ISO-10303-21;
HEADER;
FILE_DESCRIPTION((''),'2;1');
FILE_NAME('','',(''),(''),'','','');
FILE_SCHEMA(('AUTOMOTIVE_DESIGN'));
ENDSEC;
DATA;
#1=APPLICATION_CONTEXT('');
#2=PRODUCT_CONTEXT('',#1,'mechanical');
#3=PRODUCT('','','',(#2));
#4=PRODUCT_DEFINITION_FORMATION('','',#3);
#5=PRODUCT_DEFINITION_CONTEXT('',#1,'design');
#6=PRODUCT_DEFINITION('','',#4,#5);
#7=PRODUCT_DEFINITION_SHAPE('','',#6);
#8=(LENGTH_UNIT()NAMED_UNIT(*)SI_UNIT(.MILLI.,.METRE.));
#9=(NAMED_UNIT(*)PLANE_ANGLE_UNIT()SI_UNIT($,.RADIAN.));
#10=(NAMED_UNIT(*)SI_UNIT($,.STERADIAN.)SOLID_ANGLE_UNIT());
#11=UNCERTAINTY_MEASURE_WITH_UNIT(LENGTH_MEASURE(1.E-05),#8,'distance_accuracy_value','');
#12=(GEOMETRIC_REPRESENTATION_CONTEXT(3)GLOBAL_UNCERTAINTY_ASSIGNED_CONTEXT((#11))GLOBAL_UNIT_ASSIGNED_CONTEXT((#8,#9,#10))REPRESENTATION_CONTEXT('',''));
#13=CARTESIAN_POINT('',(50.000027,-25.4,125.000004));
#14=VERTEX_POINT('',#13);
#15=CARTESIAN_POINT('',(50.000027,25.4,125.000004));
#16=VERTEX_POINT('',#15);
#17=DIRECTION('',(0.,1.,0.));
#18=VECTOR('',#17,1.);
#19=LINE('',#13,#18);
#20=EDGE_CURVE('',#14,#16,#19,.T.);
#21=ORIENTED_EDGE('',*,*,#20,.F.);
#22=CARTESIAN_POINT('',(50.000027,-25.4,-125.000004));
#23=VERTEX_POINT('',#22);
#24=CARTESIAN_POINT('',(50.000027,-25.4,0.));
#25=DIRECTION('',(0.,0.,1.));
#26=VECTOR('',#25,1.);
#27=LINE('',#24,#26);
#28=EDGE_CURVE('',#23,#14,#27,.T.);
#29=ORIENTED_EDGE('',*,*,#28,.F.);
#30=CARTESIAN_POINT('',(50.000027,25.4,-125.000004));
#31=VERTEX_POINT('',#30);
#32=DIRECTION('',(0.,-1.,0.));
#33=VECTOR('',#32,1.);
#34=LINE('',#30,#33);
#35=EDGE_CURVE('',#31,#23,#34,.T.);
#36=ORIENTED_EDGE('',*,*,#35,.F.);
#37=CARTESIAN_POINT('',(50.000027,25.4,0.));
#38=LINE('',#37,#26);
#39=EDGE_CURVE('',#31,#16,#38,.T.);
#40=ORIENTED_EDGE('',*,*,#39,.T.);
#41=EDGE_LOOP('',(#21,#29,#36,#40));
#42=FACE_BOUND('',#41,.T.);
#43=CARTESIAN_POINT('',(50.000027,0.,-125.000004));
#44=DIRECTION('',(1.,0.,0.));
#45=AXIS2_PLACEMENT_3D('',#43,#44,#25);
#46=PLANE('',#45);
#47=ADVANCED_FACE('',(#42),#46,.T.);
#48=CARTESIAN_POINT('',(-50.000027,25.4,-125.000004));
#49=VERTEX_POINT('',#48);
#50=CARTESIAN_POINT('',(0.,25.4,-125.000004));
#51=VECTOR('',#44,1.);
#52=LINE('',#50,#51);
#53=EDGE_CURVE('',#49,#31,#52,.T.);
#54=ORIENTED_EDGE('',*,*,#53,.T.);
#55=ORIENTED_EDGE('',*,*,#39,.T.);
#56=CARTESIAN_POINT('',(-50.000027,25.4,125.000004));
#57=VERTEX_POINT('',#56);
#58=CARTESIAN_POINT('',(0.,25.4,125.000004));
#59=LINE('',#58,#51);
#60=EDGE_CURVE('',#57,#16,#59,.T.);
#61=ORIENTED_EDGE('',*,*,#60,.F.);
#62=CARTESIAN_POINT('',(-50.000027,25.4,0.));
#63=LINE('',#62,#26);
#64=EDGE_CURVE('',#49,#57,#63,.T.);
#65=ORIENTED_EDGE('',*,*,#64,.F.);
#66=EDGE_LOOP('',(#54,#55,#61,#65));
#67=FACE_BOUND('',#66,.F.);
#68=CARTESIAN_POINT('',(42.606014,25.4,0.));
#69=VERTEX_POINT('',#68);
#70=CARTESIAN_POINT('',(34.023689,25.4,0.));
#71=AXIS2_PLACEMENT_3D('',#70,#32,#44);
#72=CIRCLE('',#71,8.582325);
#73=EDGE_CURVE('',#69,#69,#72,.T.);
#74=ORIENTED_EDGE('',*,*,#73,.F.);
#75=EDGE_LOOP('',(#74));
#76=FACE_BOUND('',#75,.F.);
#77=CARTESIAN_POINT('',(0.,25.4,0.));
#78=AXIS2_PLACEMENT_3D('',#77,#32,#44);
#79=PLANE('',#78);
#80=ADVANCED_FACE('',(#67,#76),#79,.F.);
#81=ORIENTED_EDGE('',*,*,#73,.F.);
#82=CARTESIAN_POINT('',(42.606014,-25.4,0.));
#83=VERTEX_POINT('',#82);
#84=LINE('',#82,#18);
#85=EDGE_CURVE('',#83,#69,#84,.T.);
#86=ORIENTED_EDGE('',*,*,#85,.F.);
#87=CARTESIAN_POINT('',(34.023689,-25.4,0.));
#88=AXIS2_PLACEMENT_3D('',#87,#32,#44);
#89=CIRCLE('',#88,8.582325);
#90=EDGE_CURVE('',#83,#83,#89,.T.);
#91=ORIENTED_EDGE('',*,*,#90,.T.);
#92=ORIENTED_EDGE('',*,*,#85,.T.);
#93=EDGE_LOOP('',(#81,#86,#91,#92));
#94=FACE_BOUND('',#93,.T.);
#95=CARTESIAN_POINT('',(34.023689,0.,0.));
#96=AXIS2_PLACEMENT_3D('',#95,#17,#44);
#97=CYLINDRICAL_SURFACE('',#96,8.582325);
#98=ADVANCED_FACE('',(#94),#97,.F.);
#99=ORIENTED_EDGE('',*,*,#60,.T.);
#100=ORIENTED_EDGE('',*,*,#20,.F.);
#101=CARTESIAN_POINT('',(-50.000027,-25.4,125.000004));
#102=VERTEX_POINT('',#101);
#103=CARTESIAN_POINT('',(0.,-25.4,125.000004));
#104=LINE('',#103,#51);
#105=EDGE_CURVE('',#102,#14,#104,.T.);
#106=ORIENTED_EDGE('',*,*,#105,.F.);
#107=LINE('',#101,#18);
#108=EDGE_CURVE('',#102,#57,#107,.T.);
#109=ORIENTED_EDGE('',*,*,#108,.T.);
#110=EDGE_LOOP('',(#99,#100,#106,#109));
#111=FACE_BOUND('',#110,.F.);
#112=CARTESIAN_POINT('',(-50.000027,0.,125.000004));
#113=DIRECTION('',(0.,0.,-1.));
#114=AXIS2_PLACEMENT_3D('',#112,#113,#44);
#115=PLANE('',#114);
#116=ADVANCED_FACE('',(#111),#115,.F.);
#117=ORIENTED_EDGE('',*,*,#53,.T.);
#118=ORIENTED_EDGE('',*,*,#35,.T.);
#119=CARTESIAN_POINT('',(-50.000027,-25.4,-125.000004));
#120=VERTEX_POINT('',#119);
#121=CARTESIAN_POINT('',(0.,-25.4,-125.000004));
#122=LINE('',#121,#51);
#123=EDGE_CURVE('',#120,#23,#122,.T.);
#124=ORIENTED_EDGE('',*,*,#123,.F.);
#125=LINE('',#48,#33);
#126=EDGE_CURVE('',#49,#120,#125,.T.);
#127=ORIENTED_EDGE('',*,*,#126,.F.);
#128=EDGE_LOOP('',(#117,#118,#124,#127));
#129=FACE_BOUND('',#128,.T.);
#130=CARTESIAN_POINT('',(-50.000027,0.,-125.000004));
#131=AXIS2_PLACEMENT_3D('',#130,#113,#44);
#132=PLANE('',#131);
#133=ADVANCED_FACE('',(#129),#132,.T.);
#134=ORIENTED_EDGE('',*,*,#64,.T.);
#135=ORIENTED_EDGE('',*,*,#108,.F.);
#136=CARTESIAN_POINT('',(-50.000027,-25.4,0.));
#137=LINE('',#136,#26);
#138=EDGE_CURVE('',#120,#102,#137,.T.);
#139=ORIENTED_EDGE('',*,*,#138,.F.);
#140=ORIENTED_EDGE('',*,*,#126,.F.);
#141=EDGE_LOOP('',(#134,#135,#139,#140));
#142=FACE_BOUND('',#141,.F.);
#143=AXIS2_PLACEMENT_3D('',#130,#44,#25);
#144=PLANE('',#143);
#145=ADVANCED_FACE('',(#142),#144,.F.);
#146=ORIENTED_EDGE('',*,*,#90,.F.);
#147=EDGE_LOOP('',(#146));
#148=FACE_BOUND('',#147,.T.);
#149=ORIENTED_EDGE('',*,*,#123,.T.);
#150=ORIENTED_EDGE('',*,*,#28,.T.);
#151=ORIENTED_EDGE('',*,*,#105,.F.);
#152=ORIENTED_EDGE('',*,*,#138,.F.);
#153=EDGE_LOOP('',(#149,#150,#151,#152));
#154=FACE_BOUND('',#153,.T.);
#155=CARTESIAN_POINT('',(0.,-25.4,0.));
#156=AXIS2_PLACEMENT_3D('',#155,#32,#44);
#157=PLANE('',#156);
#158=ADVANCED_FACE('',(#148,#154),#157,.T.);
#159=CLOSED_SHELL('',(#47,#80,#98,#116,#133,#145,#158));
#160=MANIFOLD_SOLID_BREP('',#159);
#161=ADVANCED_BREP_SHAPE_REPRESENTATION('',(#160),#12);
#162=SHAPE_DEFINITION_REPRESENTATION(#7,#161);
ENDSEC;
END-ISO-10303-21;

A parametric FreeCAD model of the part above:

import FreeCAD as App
import Part
import Sketcher
from FreeCAD import Vector
Q = App.Units.Quantity


def add_polygon(sketch, points):
    """Adds a closed chain of lines whose ends are joined by coincident constraints."""
    first, n = sketch.GeometryCount, len(points)
    for a, b in zip(points, points[1:] + points[:1]):
        sketch.addGeometry(Part.LineSegment(App.Vector(*a, 0), App.Vector(*b, 0)), False)
    for i in range(n):
        sketch.addConstraint(Sketcher.Constraint("Coincident", first + i, 2, first + (i + 1) % n, 1))

doc = App.newDocument("Part")
body = doc.addObject("PartDesign::Body", "Body")

sketch1 = body.newObject("Sketcher::SketchObject", "Sketch")
sketch1.AttachmentSupport = (doc.getObject("XZ_Plane"), [""])
sketch1.MapMode = "FlatFace"
add_polygon(sketch1, [(-50, 125), (-50, -125), (50, -125), (50, 125)])
sketch1.addGeometry(Part.Circle(Vector(34, 0, 0), Vector(0, 0, 1), 9), False)
sketch1.addConstraint(Sketcher.Constraint("Vertical", 0))
sketch1.addConstraint(Sketcher.Constraint("Horizontal", 1))
sketch1.addConstraint(Sketcher.Constraint("Vertical", 2))
sketch1.addConstraint(Sketcher.Constraint("Horizontal", 3))
sketch1.addConstraint(Sketcher.Constraint("Symmetric", 0, 2, 2, 2, -1, 1))
sketch1.addConstraint(Sketcher.Constraint("PointOnObject", 4, 3, -1))
sketch1.addConstraint(Sketcher.Constraint("Diameter", 4, 17.16465))
sketch1.addConstraint(Sketcher.Constraint("DistanceY", 0, 2, 0, 1, 250.000008))
sketch1.addConstraint(Sketcher.Constraint("DistanceX", 1, 1, 1, 2, 100.000054))
sketch1.addConstraint(Sketcher.Constraint("DistanceX", -1, 1, 4, 3, 34.023689))
pad1 = body.newObject("PartDesign::Pad", "Pad")
pad1.Profile = sketch1
pad1.Length = Q("2 in")
pad1.Midplane = True

doc.recompute()
